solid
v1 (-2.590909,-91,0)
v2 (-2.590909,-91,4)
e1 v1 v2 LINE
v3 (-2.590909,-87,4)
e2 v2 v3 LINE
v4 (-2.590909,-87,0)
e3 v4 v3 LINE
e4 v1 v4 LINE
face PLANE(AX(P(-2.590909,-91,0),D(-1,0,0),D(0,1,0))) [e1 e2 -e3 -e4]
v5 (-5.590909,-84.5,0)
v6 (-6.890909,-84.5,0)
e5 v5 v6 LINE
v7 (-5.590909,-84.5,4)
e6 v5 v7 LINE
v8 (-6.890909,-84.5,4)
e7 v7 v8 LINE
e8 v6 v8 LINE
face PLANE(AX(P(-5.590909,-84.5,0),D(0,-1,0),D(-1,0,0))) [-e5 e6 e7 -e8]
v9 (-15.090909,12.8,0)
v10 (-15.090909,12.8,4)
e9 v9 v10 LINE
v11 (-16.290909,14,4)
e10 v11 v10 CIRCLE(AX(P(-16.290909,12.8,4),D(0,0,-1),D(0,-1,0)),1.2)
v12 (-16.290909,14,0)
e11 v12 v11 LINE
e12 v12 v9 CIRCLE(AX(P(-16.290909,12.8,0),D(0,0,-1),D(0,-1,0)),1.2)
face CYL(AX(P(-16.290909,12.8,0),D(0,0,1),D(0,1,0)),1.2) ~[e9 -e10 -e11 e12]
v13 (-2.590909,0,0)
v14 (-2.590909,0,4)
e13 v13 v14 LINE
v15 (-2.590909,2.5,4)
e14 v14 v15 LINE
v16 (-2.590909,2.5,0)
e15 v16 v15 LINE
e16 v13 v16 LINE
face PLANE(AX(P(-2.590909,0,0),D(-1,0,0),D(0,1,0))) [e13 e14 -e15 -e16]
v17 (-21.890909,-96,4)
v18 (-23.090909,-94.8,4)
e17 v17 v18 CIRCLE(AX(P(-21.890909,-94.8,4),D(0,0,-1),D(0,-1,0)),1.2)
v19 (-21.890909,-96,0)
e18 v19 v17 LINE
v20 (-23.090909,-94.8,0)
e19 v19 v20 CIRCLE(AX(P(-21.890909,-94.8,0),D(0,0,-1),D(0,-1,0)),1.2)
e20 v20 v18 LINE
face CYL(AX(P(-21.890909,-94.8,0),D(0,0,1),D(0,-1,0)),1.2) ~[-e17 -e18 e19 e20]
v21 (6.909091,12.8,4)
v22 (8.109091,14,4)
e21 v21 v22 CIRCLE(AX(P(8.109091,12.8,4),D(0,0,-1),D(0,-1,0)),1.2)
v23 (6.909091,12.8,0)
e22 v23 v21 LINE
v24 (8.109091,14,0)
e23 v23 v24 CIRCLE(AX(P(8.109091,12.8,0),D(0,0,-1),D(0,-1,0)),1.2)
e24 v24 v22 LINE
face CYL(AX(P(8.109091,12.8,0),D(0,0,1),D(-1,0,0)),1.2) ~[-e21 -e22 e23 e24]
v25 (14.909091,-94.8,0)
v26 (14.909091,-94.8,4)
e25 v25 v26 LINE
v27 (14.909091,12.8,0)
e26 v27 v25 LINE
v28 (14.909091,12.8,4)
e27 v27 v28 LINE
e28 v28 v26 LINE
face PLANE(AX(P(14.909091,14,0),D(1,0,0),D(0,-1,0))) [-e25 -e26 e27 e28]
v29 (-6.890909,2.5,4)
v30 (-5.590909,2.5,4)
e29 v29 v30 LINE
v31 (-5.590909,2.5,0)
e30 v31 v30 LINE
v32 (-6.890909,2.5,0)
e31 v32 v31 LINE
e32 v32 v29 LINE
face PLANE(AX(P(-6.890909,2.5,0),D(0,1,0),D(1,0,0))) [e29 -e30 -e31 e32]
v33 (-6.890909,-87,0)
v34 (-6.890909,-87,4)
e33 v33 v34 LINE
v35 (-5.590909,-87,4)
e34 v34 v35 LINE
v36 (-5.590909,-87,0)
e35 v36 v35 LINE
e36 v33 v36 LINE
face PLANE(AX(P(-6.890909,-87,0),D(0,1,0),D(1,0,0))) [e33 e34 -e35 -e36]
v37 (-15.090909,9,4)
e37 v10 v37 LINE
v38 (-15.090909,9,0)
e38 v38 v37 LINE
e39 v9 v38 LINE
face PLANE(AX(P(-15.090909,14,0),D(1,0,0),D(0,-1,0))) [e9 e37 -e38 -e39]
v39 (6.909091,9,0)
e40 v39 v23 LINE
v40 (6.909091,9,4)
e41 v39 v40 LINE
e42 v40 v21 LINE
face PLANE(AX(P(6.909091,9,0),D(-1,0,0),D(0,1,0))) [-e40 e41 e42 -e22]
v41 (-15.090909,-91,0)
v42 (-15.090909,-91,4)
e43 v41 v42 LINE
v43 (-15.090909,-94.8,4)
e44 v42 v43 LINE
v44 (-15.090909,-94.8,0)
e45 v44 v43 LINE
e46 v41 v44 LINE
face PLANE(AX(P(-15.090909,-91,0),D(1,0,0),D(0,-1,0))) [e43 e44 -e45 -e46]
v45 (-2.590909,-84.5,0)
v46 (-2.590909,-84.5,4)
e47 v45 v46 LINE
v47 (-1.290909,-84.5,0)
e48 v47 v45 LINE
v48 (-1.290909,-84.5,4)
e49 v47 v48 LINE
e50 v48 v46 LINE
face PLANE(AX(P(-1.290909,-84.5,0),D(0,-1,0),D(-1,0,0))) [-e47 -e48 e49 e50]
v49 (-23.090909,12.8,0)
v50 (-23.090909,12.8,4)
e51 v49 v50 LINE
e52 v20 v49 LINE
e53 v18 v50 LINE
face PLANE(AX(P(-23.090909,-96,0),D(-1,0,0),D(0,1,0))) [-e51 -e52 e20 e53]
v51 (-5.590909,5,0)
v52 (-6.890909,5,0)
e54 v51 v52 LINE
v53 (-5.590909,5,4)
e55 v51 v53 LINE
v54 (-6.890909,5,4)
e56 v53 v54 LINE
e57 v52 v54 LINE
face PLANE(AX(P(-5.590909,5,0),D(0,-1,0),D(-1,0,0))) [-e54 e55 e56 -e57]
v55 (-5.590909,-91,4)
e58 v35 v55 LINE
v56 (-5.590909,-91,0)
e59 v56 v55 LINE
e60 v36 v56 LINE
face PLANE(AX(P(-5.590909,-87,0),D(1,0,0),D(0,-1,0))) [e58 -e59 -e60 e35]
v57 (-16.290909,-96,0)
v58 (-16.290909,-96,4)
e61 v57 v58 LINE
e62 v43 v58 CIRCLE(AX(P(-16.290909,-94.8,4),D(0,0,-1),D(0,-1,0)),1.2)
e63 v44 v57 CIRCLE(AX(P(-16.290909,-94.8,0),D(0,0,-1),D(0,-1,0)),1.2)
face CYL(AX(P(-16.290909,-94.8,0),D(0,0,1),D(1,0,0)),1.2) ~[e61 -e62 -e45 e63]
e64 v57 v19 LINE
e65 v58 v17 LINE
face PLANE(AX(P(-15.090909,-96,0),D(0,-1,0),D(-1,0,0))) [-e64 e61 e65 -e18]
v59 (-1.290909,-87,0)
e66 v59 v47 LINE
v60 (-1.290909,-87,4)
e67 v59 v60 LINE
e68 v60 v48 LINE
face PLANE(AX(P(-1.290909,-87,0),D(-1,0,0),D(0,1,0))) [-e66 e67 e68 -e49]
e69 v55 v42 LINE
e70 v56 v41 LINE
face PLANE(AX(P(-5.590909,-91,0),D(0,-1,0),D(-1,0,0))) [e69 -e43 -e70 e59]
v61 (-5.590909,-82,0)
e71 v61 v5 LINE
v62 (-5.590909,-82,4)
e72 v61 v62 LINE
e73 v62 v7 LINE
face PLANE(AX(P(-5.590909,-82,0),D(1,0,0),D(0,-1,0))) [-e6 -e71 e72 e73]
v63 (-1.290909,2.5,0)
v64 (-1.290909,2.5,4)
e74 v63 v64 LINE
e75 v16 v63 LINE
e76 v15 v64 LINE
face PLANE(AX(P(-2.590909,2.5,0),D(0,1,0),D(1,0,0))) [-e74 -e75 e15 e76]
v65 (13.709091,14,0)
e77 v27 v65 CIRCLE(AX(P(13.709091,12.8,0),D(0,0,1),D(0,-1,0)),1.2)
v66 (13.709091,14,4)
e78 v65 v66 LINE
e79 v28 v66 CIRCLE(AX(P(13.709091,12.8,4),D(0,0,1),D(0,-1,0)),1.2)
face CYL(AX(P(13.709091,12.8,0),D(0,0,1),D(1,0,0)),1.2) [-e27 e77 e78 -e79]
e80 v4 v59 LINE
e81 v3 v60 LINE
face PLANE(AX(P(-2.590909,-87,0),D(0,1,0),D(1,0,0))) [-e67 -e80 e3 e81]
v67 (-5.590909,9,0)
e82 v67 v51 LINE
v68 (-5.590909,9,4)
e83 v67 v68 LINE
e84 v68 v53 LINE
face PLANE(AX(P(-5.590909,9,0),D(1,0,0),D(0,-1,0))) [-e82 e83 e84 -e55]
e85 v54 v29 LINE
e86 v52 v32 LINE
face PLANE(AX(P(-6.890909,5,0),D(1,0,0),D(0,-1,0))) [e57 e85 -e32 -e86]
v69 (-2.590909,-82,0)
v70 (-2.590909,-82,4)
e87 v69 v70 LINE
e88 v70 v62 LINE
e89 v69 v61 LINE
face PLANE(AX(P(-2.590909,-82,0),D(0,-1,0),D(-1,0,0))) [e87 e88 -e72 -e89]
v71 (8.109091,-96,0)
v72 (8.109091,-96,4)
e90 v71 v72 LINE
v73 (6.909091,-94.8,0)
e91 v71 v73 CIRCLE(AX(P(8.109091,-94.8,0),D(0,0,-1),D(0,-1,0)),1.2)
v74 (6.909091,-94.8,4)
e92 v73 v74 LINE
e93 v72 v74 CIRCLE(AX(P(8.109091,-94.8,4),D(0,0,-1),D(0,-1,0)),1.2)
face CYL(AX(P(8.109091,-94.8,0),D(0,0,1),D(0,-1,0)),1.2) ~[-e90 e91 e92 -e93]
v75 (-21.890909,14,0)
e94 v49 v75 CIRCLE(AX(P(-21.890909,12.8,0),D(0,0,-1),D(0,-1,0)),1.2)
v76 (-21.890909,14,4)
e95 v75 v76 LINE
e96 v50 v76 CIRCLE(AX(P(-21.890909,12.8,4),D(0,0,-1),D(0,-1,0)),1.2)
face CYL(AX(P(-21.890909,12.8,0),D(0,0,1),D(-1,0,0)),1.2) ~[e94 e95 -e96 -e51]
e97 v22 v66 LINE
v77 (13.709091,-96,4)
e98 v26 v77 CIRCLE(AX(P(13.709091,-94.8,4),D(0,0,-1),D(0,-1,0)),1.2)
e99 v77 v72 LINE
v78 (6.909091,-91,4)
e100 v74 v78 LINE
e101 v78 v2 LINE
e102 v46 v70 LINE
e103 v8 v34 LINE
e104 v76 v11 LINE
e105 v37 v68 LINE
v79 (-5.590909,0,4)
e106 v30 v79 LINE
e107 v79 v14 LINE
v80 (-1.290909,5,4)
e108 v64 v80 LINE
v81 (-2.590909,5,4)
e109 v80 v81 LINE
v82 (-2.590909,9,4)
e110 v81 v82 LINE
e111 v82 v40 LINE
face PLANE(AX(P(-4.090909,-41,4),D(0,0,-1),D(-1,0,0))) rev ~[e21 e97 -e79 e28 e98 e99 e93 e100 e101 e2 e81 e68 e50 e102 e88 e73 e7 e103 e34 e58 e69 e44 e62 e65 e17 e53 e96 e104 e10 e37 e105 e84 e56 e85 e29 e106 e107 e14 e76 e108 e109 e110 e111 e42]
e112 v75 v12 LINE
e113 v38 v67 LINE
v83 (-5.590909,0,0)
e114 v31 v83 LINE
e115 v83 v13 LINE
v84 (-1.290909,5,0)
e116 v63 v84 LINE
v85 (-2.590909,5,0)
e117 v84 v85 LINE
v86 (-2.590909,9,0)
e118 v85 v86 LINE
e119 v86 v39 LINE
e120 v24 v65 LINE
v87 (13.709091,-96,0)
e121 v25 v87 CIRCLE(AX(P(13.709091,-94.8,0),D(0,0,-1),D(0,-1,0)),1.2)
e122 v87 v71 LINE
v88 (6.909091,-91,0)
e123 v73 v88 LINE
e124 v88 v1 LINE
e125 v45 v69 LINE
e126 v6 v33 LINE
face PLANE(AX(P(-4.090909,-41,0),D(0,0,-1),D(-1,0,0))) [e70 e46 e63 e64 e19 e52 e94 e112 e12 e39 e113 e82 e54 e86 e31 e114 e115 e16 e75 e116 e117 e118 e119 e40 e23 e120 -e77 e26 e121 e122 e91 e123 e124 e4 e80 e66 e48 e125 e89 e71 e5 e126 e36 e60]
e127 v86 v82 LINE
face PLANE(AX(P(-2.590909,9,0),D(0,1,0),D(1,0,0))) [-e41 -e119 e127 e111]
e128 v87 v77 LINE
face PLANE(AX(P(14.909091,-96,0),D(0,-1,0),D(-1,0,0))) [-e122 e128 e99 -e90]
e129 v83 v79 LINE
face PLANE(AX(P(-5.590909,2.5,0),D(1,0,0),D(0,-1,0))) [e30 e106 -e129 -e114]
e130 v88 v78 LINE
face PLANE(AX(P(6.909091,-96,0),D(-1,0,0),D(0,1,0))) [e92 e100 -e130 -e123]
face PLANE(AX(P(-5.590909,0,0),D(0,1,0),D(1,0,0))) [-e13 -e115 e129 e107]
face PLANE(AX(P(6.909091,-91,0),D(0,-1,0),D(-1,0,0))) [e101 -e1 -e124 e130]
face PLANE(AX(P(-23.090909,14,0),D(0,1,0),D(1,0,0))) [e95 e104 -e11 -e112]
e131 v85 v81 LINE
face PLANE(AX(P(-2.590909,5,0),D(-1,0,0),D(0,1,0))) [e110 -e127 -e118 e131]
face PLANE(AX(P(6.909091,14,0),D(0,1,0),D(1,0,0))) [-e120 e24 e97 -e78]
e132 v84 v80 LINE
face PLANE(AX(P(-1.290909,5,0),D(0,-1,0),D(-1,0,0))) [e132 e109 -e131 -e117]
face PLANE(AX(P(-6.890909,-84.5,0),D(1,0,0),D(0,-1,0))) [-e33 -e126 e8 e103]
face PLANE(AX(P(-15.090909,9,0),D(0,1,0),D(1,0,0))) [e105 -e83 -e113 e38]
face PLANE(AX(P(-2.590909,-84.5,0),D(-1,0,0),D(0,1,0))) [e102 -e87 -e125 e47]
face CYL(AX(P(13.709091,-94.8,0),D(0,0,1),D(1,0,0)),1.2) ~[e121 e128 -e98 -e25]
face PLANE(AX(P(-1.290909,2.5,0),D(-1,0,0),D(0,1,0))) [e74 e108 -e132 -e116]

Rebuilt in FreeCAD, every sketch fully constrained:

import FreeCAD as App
import Part
import Sketcher
from FreeCAD import Vector
Q = App.Units.Quantity


def edges_at(feature, points):
    """Names of the edges that pass closest to the given points."""
    edges = feature.Shape.Edges
    near = lambda p: min(range(len(edges)), key=lambda i: edges[i].distToShape(Part.Vertex(*p))[0])
    return sorted({f"Edge{near(p) + 1}" for p in points})


def add_polygon(sketch, points):
    """Adds a closed chain of lines whose ends are joined by coincident constraints."""
    first, n = sketch.GeometryCount, len(points)
    for a, b in zip(points, points[1:] + points[:1]):
        sketch.addGeometry(Part.LineSegment(App.Vector(*a, 0), App.Vector(*b, 0)), False)
    for i in range(n):
        sketch.addConstraint(Sketcher.Constraint("Coincident", first + i, 2, first + (i + 1) % n, 1))

doc = App.newDocument("Part")
body = doc.addObject("PartDesign::Body", "Body")

sketch1 = body.newObject("Sketcher::SketchObject", "Sketch")
sketch1.AttachmentSupport = (doc.getObject("XY_Plane"), [""])
sketch1.MapMode = "FlatFace"
add_polygon(sketch1, [(14.909091, -96), (14.909091, 14), (6.909091, 14), (6.909091, 9), (-2.590909, 9), (-2.590909, 5), (-1.290909, 5), (-1.290909, 2.5), (-2.590909, 2.5), (-2.590909, 0), (-5.590909, 0), (-5.590909, 2.5), (-6.890909, 2.5), (-6.890909, 5), (-5.590909, 5), (-5.590909, 9), (-15.090909, 9), (-15.090909, 14), (-23.090909, 14), (-23.090909, -96), (-15.090909, -96), (-15.090909, -91), (-5.590909, -91), (-5.590909, -87), (-6.890909, -87), (-6.890909, -84.5), (-5.590909, -84.5), (-5.590909, -82), (-2.590909, -82), (-2.590909, -84.5), (-1.290909, -84.5), (-1.290909, -87), (-2.590909, -87), (-2.590909, -91), (6.909091, -91), (6.909091, -96)])
sketch1.addConstraint([
    Sketcher.Constraint("Vertical", 0),
    Sketcher.Constraint("Horizontal", 1),
    Sketcher.Constraint("Vertical", 2),
    Sketcher.Constraint("Horizontal", 3),
    Sketcher.Constraint("Vertical", 4),
    Sketcher.Constraint("Horizontal", 5),
    Sketcher.Constraint("Vertical", 6),
    Sketcher.Constraint("Horizontal", 7),
    Sketcher.Constraint("Vertical", 8),
    Sketcher.Constraint("Horizontal", 9),
    Sketcher.Constraint("Vertical", 10),
    Sketcher.Constraint("Horizontal", 11),
    Sketcher.Constraint("Vertical", 12),
    Sketcher.Constraint("Horizontal", 13),
    Sketcher.Constraint("Vertical", 14),
    Sketcher.Constraint("Horizontal", 15),
    Sketcher.Constraint("Vertical", 16),
    Sketcher.Constraint("Horizontal", 17),
    Sketcher.Constraint("Vertical", 18),
    Sketcher.Constraint("Horizontal", 19),
    Sketcher.Constraint("Vertical", 20),
    Sketcher.Constraint("Horizontal", 21),
    Sketcher.Constraint("Vertical", 22),
    Sketcher.Constraint("Horizontal", 23),
    Sketcher.Constraint("Vertical", 24),
    Sketcher.Constraint("Horizontal", 25),
    Sketcher.Constraint("Vertical", 26),
    Sketcher.Constraint("Horizontal", 27),
    Sketcher.Constraint("Vertical", 28),
    Sketcher.Constraint("Horizontal", 29),
    Sketcher.Constraint("Vertical", 30),
    Sketcher.Constraint("Horizontal", 31),
    Sketcher.Constraint("Vertical", 32),
    Sketcher.Constraint("Horizontal", 33),
    Sketcher.Constraint("Vertical", 34),
    Sketcher.Constraint("Horizontal", 35),
    Sketcher.Constraint("PointOnObject", 8, 2, -1),
    Sketcher.Constraint("Horizontal", 7, 2, 10, 2),
    Sketcher.Constraint("Horizontal", 5, 2, 12, 2),
    Sketcher.Constraint("Horizontal", 3, 2, 14, 2),
    Sketcher.Constraint("Horizontal", 1, 2, 16, 2),
    Sketcher.Constraint("Horizontal", 25, 2, 28, 2),
    Sketcher.Constraint("Horizontal", 23, 2, 30, 2),
    Sketcher.Constraint("Horizontal", 21, 2, 32, 2),
    Sketcher.Constraint("Horizontal", 19, 2, 34, 2),
    Sketcher.Constraint("Vertical", 4, 2, 7, 2),
    Sketcher.Constraint("Vertical", 10, 2, 13, 2),
    Sketcher.Constraint("Vertical", 16, 2, 19, 2),
    Sketcher.Constraint("Vertical", 14, 2, 21, 2),
    Sketcher.Constraint("Vertical", 12, 2, 23, 2),
    Sketcher.Constraint("Vertical", 22, 2, 25, 2),
    Sketcher.Constraint("Vertical", 8, 2, 27, 2),
    Sketcher.Constraint("Vertical", 6, 2, 29, 2),
    Sketcher.Constraint("Vertical", 28, 2, 31, 2),
    Sketcher.Constraint("Vertical", 2, 2, 33, 2),
    Sketcher.Constraint("Equal", 7, 11),
    Sketcher.Constraint("Equal", 3, 15),
    Sketcher.Constraint("Equal", 1, 17),
    Sketcher.Constraint("Equal", 6, 8),
    Sketcher.Constraint("Equal", 16, 20),
    Sketcher.Constraint("Equal", 14, 22),
    Sketcher.Constraint("Equal", 12, 24),
    Sketcher.Constraint("Equal", 24, 26),
    Sketcher.Constraint("DistanceX", 1, 2, 1, 1, Q("8 mm")),
    Sketcher.Constraint("DistanceX", 9, 2, 9, 1, Q("3 mm")),
    Sketcher.Constraint("DistanceY", 0, 1, 0, 2, Q("110 mm")),
    Sketcher.Constraint("DistanceY", 2, 2, 2, 1, Q("5 mm")),
    Sketcher.Constraint("DistanceY", 4, 2, 4, 1, Q("4 mm")),
    Sketcher.Constraint("DistanceX", 3, 2, 3, 1, Q("9.5 mm")),
    Sketcher.Constraint("DistanceX", 5, 1, 5, 2, Q("1.3 mm")),
    Sketcher.Constraint("DistanceY", 6, 2, 6, 1, Q("2.5 mm")),
    Sketcher.Constraint("DistanceX", -1, 1, 0, 2, Q("14.909091 mm")),
])
pad1 = body.newObject("PartDesign::Pad", "Pad")
pad1.Profile = sketch1
pad1.Length = 4
doc.recompute()

fillet = body.newObject("PartDesign::Fillet", "Fillet")
fillet.Base = (pad1, edges_at(pad1, [
    (6.909, 14, 2),
    (14.909, 14, 2),
    (14.909, -96, 2),
    (6.909, -96, 2),
    (-15.091, -96, 2),
    (-23.091, -96, 2),
    (-23.091, 14, 2),
    (-15.091, 14, 2),
]))
fillet.Radius = 1.2

doc.recompute()
